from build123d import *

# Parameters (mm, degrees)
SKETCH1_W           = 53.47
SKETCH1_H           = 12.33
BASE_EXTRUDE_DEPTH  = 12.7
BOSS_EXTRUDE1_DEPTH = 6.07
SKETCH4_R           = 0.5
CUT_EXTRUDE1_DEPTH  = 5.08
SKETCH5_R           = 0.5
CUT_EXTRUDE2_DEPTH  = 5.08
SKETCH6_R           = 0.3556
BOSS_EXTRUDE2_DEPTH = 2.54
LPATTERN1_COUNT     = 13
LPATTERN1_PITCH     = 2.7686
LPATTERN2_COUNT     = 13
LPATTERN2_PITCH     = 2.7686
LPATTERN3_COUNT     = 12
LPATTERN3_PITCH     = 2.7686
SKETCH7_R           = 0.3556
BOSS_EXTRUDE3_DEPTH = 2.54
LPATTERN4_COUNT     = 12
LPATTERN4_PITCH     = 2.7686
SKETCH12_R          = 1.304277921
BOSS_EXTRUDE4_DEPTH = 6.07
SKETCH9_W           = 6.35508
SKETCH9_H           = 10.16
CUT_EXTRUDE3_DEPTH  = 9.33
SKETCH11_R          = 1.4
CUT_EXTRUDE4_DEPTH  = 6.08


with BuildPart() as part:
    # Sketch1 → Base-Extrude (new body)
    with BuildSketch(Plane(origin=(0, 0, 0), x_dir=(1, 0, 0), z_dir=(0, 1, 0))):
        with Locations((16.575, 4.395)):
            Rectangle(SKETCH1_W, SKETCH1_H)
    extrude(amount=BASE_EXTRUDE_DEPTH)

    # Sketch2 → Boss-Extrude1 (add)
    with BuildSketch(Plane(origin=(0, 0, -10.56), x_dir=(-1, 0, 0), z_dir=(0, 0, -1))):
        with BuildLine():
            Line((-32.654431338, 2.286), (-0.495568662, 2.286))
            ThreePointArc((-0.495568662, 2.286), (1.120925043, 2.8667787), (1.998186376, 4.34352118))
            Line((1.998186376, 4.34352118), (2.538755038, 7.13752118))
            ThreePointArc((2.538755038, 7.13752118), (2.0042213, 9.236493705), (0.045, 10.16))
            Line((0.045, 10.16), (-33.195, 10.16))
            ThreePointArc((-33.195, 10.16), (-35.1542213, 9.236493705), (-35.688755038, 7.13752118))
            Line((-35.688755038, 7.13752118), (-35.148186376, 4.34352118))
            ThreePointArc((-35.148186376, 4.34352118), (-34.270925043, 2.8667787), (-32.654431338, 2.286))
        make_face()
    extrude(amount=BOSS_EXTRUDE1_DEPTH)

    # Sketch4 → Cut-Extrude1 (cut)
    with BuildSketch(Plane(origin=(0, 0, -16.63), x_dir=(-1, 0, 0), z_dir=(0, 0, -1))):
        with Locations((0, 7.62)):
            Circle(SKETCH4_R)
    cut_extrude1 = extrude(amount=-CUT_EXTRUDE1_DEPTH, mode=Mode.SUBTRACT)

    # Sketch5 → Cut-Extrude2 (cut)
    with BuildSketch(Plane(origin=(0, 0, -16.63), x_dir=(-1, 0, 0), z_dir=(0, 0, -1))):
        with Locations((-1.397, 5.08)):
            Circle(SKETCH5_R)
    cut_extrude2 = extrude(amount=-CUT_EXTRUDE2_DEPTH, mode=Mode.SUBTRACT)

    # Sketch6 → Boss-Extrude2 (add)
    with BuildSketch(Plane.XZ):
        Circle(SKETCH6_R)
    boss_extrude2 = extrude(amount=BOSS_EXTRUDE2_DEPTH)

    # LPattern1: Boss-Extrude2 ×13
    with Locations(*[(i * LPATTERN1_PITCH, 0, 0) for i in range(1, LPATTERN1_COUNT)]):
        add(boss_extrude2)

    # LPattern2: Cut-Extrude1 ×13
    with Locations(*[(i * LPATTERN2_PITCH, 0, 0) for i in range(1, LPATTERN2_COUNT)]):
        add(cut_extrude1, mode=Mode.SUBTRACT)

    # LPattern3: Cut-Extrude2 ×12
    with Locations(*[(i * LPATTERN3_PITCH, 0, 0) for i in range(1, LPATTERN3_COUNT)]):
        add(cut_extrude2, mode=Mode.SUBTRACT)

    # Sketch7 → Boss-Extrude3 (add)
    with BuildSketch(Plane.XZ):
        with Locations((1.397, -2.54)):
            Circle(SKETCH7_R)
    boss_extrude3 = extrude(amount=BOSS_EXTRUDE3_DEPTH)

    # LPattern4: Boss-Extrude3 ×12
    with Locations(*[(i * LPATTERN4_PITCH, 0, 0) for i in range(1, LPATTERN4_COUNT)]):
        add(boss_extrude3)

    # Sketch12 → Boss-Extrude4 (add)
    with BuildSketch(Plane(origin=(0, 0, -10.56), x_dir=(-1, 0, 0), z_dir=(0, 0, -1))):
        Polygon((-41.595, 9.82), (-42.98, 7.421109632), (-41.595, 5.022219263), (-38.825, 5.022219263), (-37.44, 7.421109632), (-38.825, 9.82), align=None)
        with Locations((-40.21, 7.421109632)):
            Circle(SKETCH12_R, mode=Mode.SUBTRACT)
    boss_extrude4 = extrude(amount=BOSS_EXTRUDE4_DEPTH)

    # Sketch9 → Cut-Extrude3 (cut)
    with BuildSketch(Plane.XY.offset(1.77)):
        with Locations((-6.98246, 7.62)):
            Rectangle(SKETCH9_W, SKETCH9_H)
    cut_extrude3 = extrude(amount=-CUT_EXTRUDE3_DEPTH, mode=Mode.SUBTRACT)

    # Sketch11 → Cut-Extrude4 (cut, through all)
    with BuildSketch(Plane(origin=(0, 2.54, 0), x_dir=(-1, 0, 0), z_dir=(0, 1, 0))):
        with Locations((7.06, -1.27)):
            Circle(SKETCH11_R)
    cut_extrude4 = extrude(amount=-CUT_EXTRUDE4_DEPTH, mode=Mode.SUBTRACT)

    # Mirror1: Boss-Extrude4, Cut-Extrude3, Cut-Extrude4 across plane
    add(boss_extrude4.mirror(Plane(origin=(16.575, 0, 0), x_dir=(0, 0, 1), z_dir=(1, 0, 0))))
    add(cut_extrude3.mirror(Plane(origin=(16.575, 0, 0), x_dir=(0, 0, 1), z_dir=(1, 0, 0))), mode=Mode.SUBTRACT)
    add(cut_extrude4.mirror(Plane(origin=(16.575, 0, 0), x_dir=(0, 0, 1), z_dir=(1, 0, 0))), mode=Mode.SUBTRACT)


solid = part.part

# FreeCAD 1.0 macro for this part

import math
import FreeCAD as App
import Part
import Sketcher
Q = App.Units.Quantity

doc = App.newDocument("Part")
params = doc.addObject("Spreadsheet::Sheet", "Params")
for row, (alias, value) in enumerate([
    ("pad1_length", "0.5 in"),
    ("sketch2_radius", "0.1 in"),
    ("pad2_length", "6.07 mm"),
    ("pocket1_length", "0.2 in"),
    ("pocket2_length", "0.2 in"),
    ("sketch5_diameter", "0.028 in"),
    ("pad3_length", "0.1 in"),
    ("linearpattern_pitch", "0.109 in"),
    ("linearpattern2_pitch", "0.109 in"),
    ("linearpattern3_pitch", "0.109 in"),
    ("sketch6_diameter", "0.028 in"),
    ("pad4_length", "0.1 in"),
    ("linearpattern4_pitch", "0.109 in"),
    ("pad5_length", "6.07 mm"),
    ("sketch8_height", "0.4 in"),
    ("pocket3_length", "9.33 mm"),
], start=1):
    params.set(f"A{row}", alias)
    params.set(f"B{row}", "=" + value)
    params.setAlias(f"B{row}", alias)

body = doc.addObject("PartDesign::Body", "Body")

sketch1 = body.newObject("Sketcher::SketchObject", "Sketch")
sketch1.AttachmentSupport = (doc.getObject("XZ_Plane"), [""])
sketch1.MapMode = "FlatFace"
sketch1.addGeometry(Part.LineSegment(App.Vector(-10, -11, 0), App.Vector(-10, 2, 0)), False)
sketch1.addGeometry(Part.LineSegment(App.Vector(-10, 2, 0), App.Vector(43, 2, 0)), False)
sketch1.addGeometry(Part.LineSegment(App.Vector(43, 2, 0), App.Vector(43, -11, 0)), False)
sketch1.addGeometry(Part.LineSegment(App.Vector(43, -11, 0), App.Vector(-10, -11, 0)), False)
sketch1.addConstraint(Sketcher.Constraint("Coincident", 0, 2, 1, 1))
sketch1.addConstraint(Sketcher.Constraint("Coincident", 1, 2, 2, 1))
sketch1.addConstraint(Sketcher.Constraint("Coincident", 2, 2, 3, 1))
sketch1.addConstraint(Sketcher.Constraint("Coincident", 3, 2, 0, 1))
sketch1.addConstraint(Sketcher.Constraint("Vertical", 0))
sketch1.addConstraint(Sketcher.Constraint("Horizontal", 1))
sketch1.addConstraint(Sketcher.Constraint("Vertical", 2))
sketch1.addConstraint(Sketcher.Constraint("Horizontal", 3))
sketch1.addConstraint(Sketcher.Constraint("DistanceX", 0, 2, -1, 1, Q("0.4 in")))
sketch1.addConstraint(Sketcher.Constraint("DistanceX", 1, 1, 1, 2, Q("53.47 mm")))
sketch1.addConstraint(Sketcher.Constraint("DistanceY", 0, 1, 0, 2, Q("12.33 mm")))
sketch1.addConstraint(Sketcher.Constraint("DistanceY", -1, 1, 0, 2, Q("1.77 mm")))
pad1 = body.newObject("PartDesign::Pad", "Pad")
pad1.Profile = sketch1
pad1.setExpression("Length", "Params.pad1_length")
pad1.Reversed = True

sketch2 = body.newObject("Sketcher::SketchObject", "Sketch001")
sketch2.AttachmentSupport = (doc.getObject("XY_Plane"), [""])
sketch2.MapMode = "FlatFace"
sketch2.AttachmentOffset = App.Placement(App.Vector(0, 0, -10.56), App.Rotation())
sketch2.addGeometry(Part.LineSegment(App.Vector(32.7, 2.3, 0), App.Vector(0.5, 2.3, 0)), False)
sketch2.addGeometry(Part.ArcOfCircle(Part.Circle(App.Vector(0.5, 4.8, 0), App.Vector(0, 0, 1), 2.5), math.radians(-169), math.radians(-90)), False)
sketch2.addGeometry(Part.LineSegment(App.Vector(-2, 4.3, 0), App.Vector(-2.5, 7.1, 0)), False)
sketch2.addGeometry(Part.ArcOfCircle(Part.Circle(App.Vector(0, 7.6, 0), App.Vector(0, 0, 1), 2.5), math.radians(90), math.radians(191)), False)
sketch2.addGeometry(Part.LineSegment(App.Vector(0, 10.2, 0), App.Vector(33.2, 10.2, 0)), False)
sketch2.addGeometry(Part.ArcOfCircle(Part.Circle(App.Vector(33.2, 7.6, 0), App.Vector(0, 0, 1), 2.5), math.radians(-11), math.radians(90)), False)
sketch2.addGeometry(Part.LineSegment(App.Vector(35.7, 7.1, 0), App.Vector(35.1, 4.3, 0)), False)
sketch2.addGeometry(Part.ArcOfCircle(Part.Circle(App.Vector(32.7, 4.8, 0), App.Vector(0, 0, 1), 2.5), math.radians(-90), math.radians(-11)), False)
sketch2.addConstraint(Sketcher.Constraint("Tangent", 0, 2, 1, 2))
sketch2.addConstraint(Sketcher.Constraint("Tangent", 1, 1, 2, 1))
sketch2.addConstraint(Sketcher.Constraint("Tangent", 2, 2, 3, 2))
sketch2.addConstraint(Sketcher.Constraint("Tangent", 3, 1, 4, 1))
sketch2.addConstraint(Sketcher.Constraint("Tangent", 4, 2, 5, 2))
sketch2.addConstraint(Sketcher.Constraint("Tangent", 5, 1, 6, 1))
sketch2.addConstraint(Sketcher.Constraint("Tangent", 6, 2, 7, 2))
sketch2.addConstraint(Sketcher.Constraint("Tangent", 7, 1, 0, 1))
sketch2.addConstraint(Sketcher.Constraint("Horizontal", 0))
sketch2.addConstraint(Sketcher.Constraint("Horizontal", 4))
sketch2.addConstraint(Sketcher.Constraint("Equal", 1, 3))
sketch2.addConstraint(Sketcher.Constraint("Equal", 3, 5))
sketch2.addConstraint(Sketcher.Constraint("Equal", 5, 7))
sketch2.addConstraint(Sketcher.Constraint("Horizontal", 2, 2, 5, 1))
sketch2.addConstraint(Sketcher.Constraint("Radius", 1, Q("0.1 in")))
sketch2.addConstraint(Sketcher.Constraint("DistanceY", -1, 1, 3, 3, Q("0.3 in")))
sketch2.addConstraint(Sketcher.Constraint("DistanceY", -1, 1, 1, 3, Q("0.19 in")))
sketch2.addConstraint(Sketcher.Constraint("Angle", 2, Q("100.95 deg")))
sketch2.addConstraint(Sketcher.Constraint("DistanceX", 4, 1, 4, 2, Q("33.24 mm")))
sketch2.addConstraint(Sketcher.Constraint("DistanceX", 3, 3, -1, 1, Q("0.045 mm")))
sketch2.setExpression("Constraints[14]", "Params.sketch2_radius")
pad2 = body.newObject("PartDesign::Pad", "Pad001")
pad2.Profile = sketch2
pad2.setExpression("Length", "Params.pad2_length")
pad2.Reversed = True

sketch3 = body.newObject("Sketcher::SketchObject", "Sketch002")
sketch3.AttachmentSupport = (doc.getObject("XY_Plane"), [""])
sketch3.MapMode = "FlatFace"
sketch3.AttachmentOffset = App.Placement(App.Vector(0, 0, -16.63), App.Rotation())
sketch3.addGeometry(Part.Circle(App.Vector(0, 7.6, 0), App.Vector(0, 0, 1), 0.5), False)
sketch3.addConstraint(Sketcher.Constraint("PointOnObject", 0, 3, -2))
sketch3.addConstraint(Sketcher.Constraint("DistanceY", -1, 1, 0, 3, Q("0.3 in")))
sketch3.addConstraint(Sketcher.Constraint("Diameter", 0, Q("1 mm")))
pocket1 = body.newObject("PartDesign::Pocket", "Pocket")
pocket1.Profile = sketch3
pocket1.setExpression("Length", "Params.pocket1_length")
pocket1.Reversed = True

sketch4 = body.newObject("Sketcher::SketchObject", "Sketch003")
sketch4.AttachmentSupport = (doc.getObject("XY_Plane"), [""])
sketch4.MapMode = "FlatFace"
sketch4.AttachmentOffset = App.Placement(App.Vector(0, 0, -16.63), App.Rotation())
sketch4.addGeometry(Part.Circle(App.Vector(1.4, 5.1, 0), App.Vector(0, 0, 1), 0.5), False)
sketch4.addConstraint(Sketcher.Constraint("DistanceY", -1, 1, 0, 3, Q("0.2 in")))
sketch4.addConstraint(Sketcher.Constraint("Diameter", 0, Q("1 mm")))
sketch4.addConstraint(Sketcher.Constraint("DistanceX", -1, 1, 0, 3, Q("0.055 in")))
pocket2 = body.newObject("PartDesign::Pocket", "Pocket001")
pocket2.Profile = sketch4
pocket2.setExpression("Length", "Params.pocket2_length")
pocket2.Reversed = True

sketch5 = body.newObject("Sketcher::SketchObject", "Sketch004")
sketch5.AttachmentSupport = (doc.getObject("XZ_Plane"), [""])
sketch5.MapMode = "FlatFace"
sketch5.addGeometry(Part.Circle(App.Vector(0, 0, 0), App.Vector(0, 0, 1), 0.36), False)
sketch5.addConstraint(Sketcher.Constraint("Coincident", 0, 3, -1, 1))
sketch5.addConstraint(Sketcher.Constraint("Diameter", 0, Q("0.028 in")))
sketch5.setExpression("Constraints[1]", "Params.sketch5_diameter")
pad3 = body.newObject("PartDesign::Pad", "Pad002")
pad3.Profile = sketch5
pad3.setExpression("Length", "Params.pad3_length")
doc.recompute()

linearpattern = body.newObject("PartDesign::LinearPattern", "LinearPattern")
linearpattern.Originals = [pad3]
linearpattern.Direction = (doc.getObject("X_Axis"), [""])
linearpattern.Mode = "offset"
linearpattern.setExpression("Offset", "Params.linearpattern_pitch")
linearpattern.Occurrences = 13
body.Tip = linearpattern
doc.recompute()

linearpattern2 = body.newObject("PartDesign::LinearPattern", "LinearPattern001")
linearpattern2.Originals = [pocket1]
linearpattern2.Direction = (doc.getObject("X_Axis"), [""])
linearpattern2.Mode = "offset"
linearpattern2.setExpression("Offset", "Params.linearpattern2_pitch")
linearpattern2.Occurrences = 13
body.Tip = linearpattern2
doc.recompute()

linearpattern3 = body.newObject("PartDesign::LinearPattern", "LinearPattern002")
linearpattern3.Originals = [pocket2]
linearpattern3.Direction = (doc.getObject("X_Axis"), [""])
linearpattern3.Mode = "offset"
linearpattern3.setExpression("Offset", "Params.linearpattern3_pitch")
linearpattern3.Occurrences = 12
body.Tip = linearpattern3

sketch6 = body.newObject("Sketcher::SketchObject", "Sketch005")
sketch6.AttachmentSupport = (doc.getObject("XZ_Plane"), [""])
sketch6.MapMode = "FlatFace"
sketch6.addGeometry(Part.Circle(App.Vector(1.4, -2.54, 0), App.Vector(0, 0, 1), 0.36), False)
sketch6.addConstraint(Sketcher.Constraint("Diameter", 0, Q("0.028 in")))
sketch6.addConstraint(Sketcher.Constraint("DistanceY", 0, 3, -1, 1, Q("0.1 in")))
sketch6.addConstraint(Sketcher.Constraint("DistanceX", -1, 1, 0, 3, Q("0.055 in")))
sketch6.setExpression("Constraints[0]", "Params.sketch6_diameter")
pad4 = body.newObject("PartDesign::Pad", "Pad003")
pad4.Profile = sketch6
pad4.setExpression("Length", "Params.pad4_length")
doc.recompute()

linearpattern4 = body.newObject("PartDesign::LinearPattern", "LinearPattern003")
linearpattern4.Originals = [pad4]
linearpattern4.Direction = (doc.getObject("X_Axis"), [""])
linearpattern4.Mode = "offset"
linearpattern4.setExpression("Offset", "Params.linearpattern4_pitch")
linearpattern4.Occurrences = 12
body.Tip = linearpattern4

sketch7 = body.newObject("Sketcher::SketchObject", "Sketch006")
sketch7.AttachmentSupport = (doc.getObject("XY_Plane"), [""])
sketch7.MapMode = "FlatFace"
sketch7.AttachmentOffset = App.Placement(App.Vector(0, 0, -10.56), App.Rotation())
sketch7.addGeometry(Part.LineSegment(App.Vector(41.6, 9.8, 0), App.Vector(43, 7.4, 0)), False)
sketch7.addGeometry(Part.LineSegment(App.Vector(43, 7.4, 0), App.Vector(41.6, 5, 0)), False)
sketch7.addGeometry(Part.LineSegment(App.Vector(41.6, 5, 0), App.Vector(38.8, 5, 0)), False)
sketch7.addGeometry(Part.LineSegment(App.Vector(38.8, 5, 0), App.Vector(37.4, 7.4, 0)), False)
sketch7.addGeometry(Part.LineSegment(App.Vector(37.4, 7.4, 0), App.Vector(38.8, 9.8, 0)), False)
sketch7.addGeometry(Part.LineSegment(App.Vector(38.8, 9.8, 0), App.Vector(41.6, 9.8, 0)), False)
sketch7.addGeometry(Part.Circle(App.Vector(40.2, 7.4, 0), App.Vector(0, 0, 1), 1.3), False)
sketch7.addConstraint(Sketcher.Constraint("Coincident", 0, 2, 1, 1))
sketch7.addConstraint(Sketcher.Constraint("Coincident", 1, 2, 2, 1))
sketch7.addConstraint(Sketcher.Constraint("Coincident", 2, 2, 3, 1))
sketch7.addConstraint(Sketcher.Constraint("Coincident", 3, 2, 4, 1))
sketch7.addConstraint(Sketcher.Constraint("Coincident", 4, 2, 5, 1))
sketch7.addConstraint(Sketcher.Constraint("Coincident", 5, 2, 0, 1))
sketch7.addConstraint(Sketcher.Constraint("Horizontal", 2))
sketch7.addConstraint(Sketcher.Constraint("Horizontal", 5))
sketch7.addConstraint(Sketcher.Constraint("Parallel", 0, 3))
sketch7.addConstraint(Sketcher.Constraint("Parallel", 1, 4))
sketch7.addConstraint(Sketcher.Constraint("Horizontal", 6, 3, 0, 2))
sketch7.addConstraint(Sketcher.Constraint("Horizontal", 0, 2, 3, 2))
sketch7.addConstraint(Sketcher.Constraint("Vertical", 2, 2, 4, 2))
sketch7.addConstraint(Sketcher.Constraint("Vertical", 1, 2, 5, 2))
sketch7.addConstraint(Sketcher.Constraint("Angle", 0, Q("-60 deg")))
sketch7.addConstraint(Sketcher.Constraint("Diameter", 6, Q("2.608556 mm")))
sketch7.addConstraint(Sketcher.Constraint("DistanceX", 2, 2, 2, 1, Q("2.77 mm")))
sketch7.addConstraint(Sketcher.Constraint("Distance", 0, Q("2.77 mm")))
sketch7.addConstraint(Sketcher.Constraint("DistanceX", -1, 1, 6, 3, Q("40.21 mm")))
sketch7.addConstraint(Sketcher.Constraint("DistanceX", -1, 1, 0, 2, Q("42.98 mm")))
sketch7.addConstraint(Sketcher.Constraint("DistanceY", -1, 1, 4, 2, Q("9.82 mm")))
pad5 = body.newObject("PartDesign::Pad", "Pad004")
pad5.Profile = sketch7
pad5.setExpression("Length", "Params.pad5_length")
pad5.Reversed = True

sketch8 = body.newObject("Sketcher::SketchObject", "Sketch007")
sketch8.AttachmentSupport = (doc.getObject("XY_Plane"), [""])
sketch8.MapMode = "FlatFace"
sketch8.AttachmentOffset = App.Placement(App.Vector(0, 0, 1.77), App.Rotation())
sketch8.addGeometry(Part.LineSegment(App.Vector(-10, 13, 0), App.Vector(-10, 3, 0)), False)
sketch8.addGeometry(Part.LineSegment(App.Vector(-10, 3, 0), App.Vector(-4, 3, 0)), False)
sketch8.addGeometry(Part.LineSegment(App.Vector(-4, 3, 0), App.Vector(-4, 13, 0)), False)
sketch8.addGeometry(Part.LineSegment(App.Vector(-4, 13, 0), App.Vector(-10, 13, 0)), False)
sketch8.addConstraint(Sketcher.Constraint("Coincident", 0, 2, 1, 1))
sketch8.addConstraint(Sketcher.Constraint("Coincident", 1, 2, 2, 1))
sketch8.addConstraint(Sketcher.Constraint("Coincident", 2, 2, 3, 1))
sketch8.addConstraint(Sketcher.Constraint("Coincident", 3, 2, 0, 1))
sketch8.addConstraint(Sketcher.Constraint("Vertical", 0))
sketch8.addConstraint(Sketcher.Constraint("Horizontal", 1))
sketch8.addConstraint(Sketcher.Constraint("Vertical", 2))
sketch8.addConstraint(Sketcher.Constraint("Horizontal", 3))
sketch8.addConstraint(Sketcher.Constraint("DistanceY", 0, 2, 0, 1, Q("0.4 in")))
sketch8.addConstraint(Sketcher.Constraint("DistanceX", 0, 2, -1, 1, Q("0.4 in")))
sketch8.addConstraint(Sketcher.Constraint("DistanceY", -1, 1, 0, 2, Q("0.1 in")))
sketch8.addConstraint(Sketcher.Constraint("DistanceX", 1, 1, 1, 2, Q("0.2502 in")))
sketch8.setExpression("Constraints[8]", "Params.sketch8_height")
pocket3 = body.newObject("PartDesign::Pocket", "Pocket002")
pocket3.Profile = sketch8
pocket3.setExpression("Length", "Params.pocket3_length")

sketch9 = body.newObject("Sketcher::SketchObject", "Sketch008")
sketch9.AttachmentSupport = (doc.getObject("XZ_Plane"), [""])
sketch9.MapMode = "FlatFace"
sketch9.AttachmentOffset = App.Placement(App.Vector(0, 0, -0.1 * 25.4), App.Rotation())
sketch9.addGeometry(Part.Circle(App.Vector(-7.1, -1.3, 0), App.Vector(0, 0, 1), 1.4), False)
sketch9.addConstraint(Sketcher.Constraint("Diameter", 0, Q("2.8 mm")))
sketch9.addConstraint(Sketcher.Constraint("DistanceY", 0, 3, -1, 1, Q("0.05 in")))
sketch9.addConstraint(Sketcher.Constraint("DistanceX", 0, 3, -1, 1, Q("7.06 mm")))
pocket4 = body.newObject("PartDesign::Pocket", "Pocket003")
pocket4.Profile = sketch9
pocket4.Type = "ThroughAll"
pocket4.Reversed = True
doc.recompute()

datumplane = body.newObject("PartDesign::Plane", "DatumPlane")
datumplane.AttachmentSupport = (doc.getObject("YZ_Plane"), [""])
datumplane.MapMode = "FlatFace"
datumplane.AttachmentOffset = App.Placement(App.Vector(0, 0, 16.575), App.Rotation())
mirrored = body.newObject("PartDesign::Mirrored", "Mirrored")
mirrored.Originals = [pad5, pocket3, pocket4]
mirrored.MirrorPlane = (datumplane, [""])
body.Tip = mirrored

doc.recompute()
